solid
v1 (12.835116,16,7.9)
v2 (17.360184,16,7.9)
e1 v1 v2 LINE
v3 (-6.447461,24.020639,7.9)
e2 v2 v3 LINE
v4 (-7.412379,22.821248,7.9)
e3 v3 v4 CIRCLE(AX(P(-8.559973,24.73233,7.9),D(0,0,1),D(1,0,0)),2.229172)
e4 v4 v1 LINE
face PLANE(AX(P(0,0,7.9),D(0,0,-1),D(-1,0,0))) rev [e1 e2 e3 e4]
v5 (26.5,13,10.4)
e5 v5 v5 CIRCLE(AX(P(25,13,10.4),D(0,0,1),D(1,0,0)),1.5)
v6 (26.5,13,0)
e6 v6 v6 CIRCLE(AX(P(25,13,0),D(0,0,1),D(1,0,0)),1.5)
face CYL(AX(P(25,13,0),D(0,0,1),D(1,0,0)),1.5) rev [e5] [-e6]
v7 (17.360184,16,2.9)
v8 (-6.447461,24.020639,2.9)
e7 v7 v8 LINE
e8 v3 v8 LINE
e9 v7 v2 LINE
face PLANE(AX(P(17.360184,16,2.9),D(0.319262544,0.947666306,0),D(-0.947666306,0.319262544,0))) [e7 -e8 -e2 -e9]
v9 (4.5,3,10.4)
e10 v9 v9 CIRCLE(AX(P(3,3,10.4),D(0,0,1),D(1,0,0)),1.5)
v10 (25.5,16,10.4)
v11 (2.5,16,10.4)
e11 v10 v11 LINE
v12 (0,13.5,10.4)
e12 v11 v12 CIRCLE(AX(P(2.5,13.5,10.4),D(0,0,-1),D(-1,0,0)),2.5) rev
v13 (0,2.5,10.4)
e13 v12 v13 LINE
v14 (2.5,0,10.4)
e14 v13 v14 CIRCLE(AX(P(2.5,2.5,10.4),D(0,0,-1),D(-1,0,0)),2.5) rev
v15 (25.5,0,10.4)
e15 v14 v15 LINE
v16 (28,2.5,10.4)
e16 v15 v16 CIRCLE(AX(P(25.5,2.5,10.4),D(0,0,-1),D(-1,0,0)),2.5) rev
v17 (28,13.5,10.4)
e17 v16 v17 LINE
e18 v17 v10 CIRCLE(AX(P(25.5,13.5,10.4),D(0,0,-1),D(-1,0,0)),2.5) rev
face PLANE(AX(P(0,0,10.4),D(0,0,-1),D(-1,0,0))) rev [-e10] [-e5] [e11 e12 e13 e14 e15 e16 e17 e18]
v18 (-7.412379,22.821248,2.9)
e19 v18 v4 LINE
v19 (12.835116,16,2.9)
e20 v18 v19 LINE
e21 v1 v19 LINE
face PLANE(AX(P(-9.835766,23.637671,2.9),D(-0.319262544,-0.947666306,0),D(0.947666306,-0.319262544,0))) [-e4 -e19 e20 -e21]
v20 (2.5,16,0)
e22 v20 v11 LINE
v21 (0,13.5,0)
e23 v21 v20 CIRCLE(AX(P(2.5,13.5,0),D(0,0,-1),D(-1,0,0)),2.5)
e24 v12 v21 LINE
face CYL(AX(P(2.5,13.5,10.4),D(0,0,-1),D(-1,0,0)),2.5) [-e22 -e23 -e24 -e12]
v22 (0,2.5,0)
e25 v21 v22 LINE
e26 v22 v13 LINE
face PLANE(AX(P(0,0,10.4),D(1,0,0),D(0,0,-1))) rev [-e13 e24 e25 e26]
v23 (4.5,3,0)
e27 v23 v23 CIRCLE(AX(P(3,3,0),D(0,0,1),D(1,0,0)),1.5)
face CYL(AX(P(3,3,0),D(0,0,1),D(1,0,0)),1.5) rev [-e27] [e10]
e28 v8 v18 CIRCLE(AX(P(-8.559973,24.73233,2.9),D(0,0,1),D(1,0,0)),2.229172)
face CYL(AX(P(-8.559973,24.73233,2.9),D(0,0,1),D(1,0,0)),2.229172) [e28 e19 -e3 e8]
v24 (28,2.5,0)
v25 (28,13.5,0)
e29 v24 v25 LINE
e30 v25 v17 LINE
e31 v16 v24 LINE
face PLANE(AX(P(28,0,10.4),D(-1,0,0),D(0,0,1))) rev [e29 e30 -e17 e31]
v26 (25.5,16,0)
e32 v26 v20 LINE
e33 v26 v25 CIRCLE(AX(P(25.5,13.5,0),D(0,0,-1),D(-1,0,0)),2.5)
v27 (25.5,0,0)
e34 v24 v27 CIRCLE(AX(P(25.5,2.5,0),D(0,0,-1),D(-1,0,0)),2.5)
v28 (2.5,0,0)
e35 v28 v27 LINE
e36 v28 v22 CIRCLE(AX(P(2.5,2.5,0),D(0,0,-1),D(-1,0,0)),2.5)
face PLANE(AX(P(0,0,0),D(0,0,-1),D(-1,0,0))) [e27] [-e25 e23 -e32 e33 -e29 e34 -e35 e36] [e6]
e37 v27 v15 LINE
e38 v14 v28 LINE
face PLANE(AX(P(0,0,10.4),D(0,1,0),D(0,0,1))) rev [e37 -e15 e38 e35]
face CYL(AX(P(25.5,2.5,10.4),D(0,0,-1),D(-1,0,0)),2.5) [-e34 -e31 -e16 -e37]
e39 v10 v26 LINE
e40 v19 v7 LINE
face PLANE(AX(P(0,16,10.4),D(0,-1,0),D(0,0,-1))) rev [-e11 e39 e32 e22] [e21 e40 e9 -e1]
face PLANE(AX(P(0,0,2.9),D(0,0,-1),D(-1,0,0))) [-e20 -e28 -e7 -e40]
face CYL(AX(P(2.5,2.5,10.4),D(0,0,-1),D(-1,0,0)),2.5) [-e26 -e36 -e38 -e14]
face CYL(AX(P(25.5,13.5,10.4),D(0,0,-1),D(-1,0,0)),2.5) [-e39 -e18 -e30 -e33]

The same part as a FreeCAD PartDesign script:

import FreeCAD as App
import Part
import Sketcher


def edges_at(feature, points):
    """Names of the edges that pass closest to the given points."""
    edges = feature.Shape.Edges
    near = lambda p: min(range(len(edges)), key=lambda i: edges[i].distToShape(Part.Vertex(*p))[0])
    return sorted({f"Edge{near(p) + 1}" for p in points})


def add_polygon(sketch, points):
    """Adds a closed chain of lines whose ends are joined by coincident constraints."""
    first, n = sketch.GeometryCount, len(points)
    for a, b in zip(points, points[1:] + points[:1]):
        sketch.addGeometry(Part.LineSegment(App.Vector(*a, 0), App.Vector(*b, 0)), False)
    for i in range(n):
        sketch.addConstraint(Sketcher.Constraint("Coincident", first + i, 2, first + (i + 1) % n, 1))

doc = App.newDocument("Part")
body = doc.addObject("PartDesign::Body", "Body")

sketch1 = body.newObject("Sketcher::SketchObject", "Sketch")
sketch1.AttachmentSupport = (doc.getObject("XY_Plane"), [""])
sketch1.MapMode = "FlatFace"
add_polygon(sketch1, [(0, 16), (0, 0), (28, 0), (28, 16)])
sketch1.addConstraint(Sketcher.Constraint("Vertical", 0))
sketch1.addConstraint(Sketcher.Constraint("Horizontal", 1))
sketch1.addConstraint(Sketcher.Constraint("Vertical", 2))
sketch1.addConstraint(Sketcher.Constraint("Horizontal", 3))
sketch1.addConstraint(Sketcher.Constraint("Coincident", 0, 2, -1, 1))
sketch1.addConstraint(Sketcher.Constraint("DistanceX", 1, 1, 1, 2, 28.0))
sketch1.addConstraint(Sketcher.Constraint("DistanceY", 0, 2, 0, 1, 16.0))
pad1 = body.newObject("PartDesign::Pad", "Pad")
pad1.Profile = sketch1
pad1.Length = 10.4

sketch2 = body.newObject("Sketcher::SketchObject", "Sketch001")
sketch2.AttachmentSupport = (doc.getObject("XY_Plane"), [""])
sketch2.MapMode = "FlatFace"
sketch2.AttachmentOffset = App.Placement(App.Vector(0, 0, 10.4), App.Rotation())
sketch2.addGeometry(Part.Circle(App.Vector(3, 3, 0), App.Vector(0, 0, 1), 1.5), False)
sketch2.addGeometry(Part.Circle(App.Vector(25, 13, 0), App.Vector(0, 0, 1), 1.5), False)
sketch2.addConstraint(Sketcher.Constraint("Equal", 0, 1))
sketch2.addConstraint(Sketcher.Constraint("Diameter", 0, 3.0))
sketch2.addConstraint(Sketcher.Constraint("DistanceX", -1, 1, 0, 3, 3.0))
sketch2.addConstraint(Sketcher.Constraint("DistanceY", -1, 1, 0, 3, 3.0))
sketch2.addConstraint(Sketcher.Constraint("DistanceX", -1, 1, 1, 3, 25.0))
sketch2.addConstraint(Sketcher.Constraint("DistanceY", -1, 1, 1, 3, 13.0))
pocket1 = body.newObject("PartDesign::Pocket", "Pocket")
pocket1.Profile = sketch2
pocket1.Length = 10.4
doc.recompute()

fillet = body.newObject("PartDesign::Fillet", "Fillet")
fillet.Base = (pocket1, edges_at(pocket1, [
    (0, 16, 5.2),
    (28, 16, 5.2),
    (28, 0, 5.2),
    (0, 0, 5.2),
]))
fillet.Radius = 2.5

sketch3 = body.newObject("Sketcher::SketchObject", "Sketch002")
sketch3.AttachmentSupport = (doc.getObject("XY_Plane"), [""])
sketch3.MapMode = "FlatFace"
sketch3.AttachmentOffset = App.Placement(App.Vector(0, 0, 7.9), App.Rotation())
add_polygon(sketch3, [(17.4, 16), (-9.4, 25), (-9.8, 23.6), (15.2, 15.2)])
sketch3.addConstraint(Sketcher.Constraint("Perpendicular", 0, 1))
sketch3.addConstraint(Sketcher.Constraint("Perpendicular", 1, 2))
sketch3.addConstraint(Sketcher.Constraint("DistanceY", -1, 1, 3, 2, 16.0))
sketch3.addConstraint(Sketcher.Constraint("Distance", 0, 28.211108))
sketch3.addConstraint(Sketcher.Constraint("Distance", 3, 2.26276))
sketch3.addConstraint(Sketcher.Constraint("DistanceY", -1, 1, 0, 2, 25.00675))
sketch3.addConstraint(Sketcher.Constraint("DistanceY", -1, 1, 1, 2, 23.637671))
sketch3.addConstraint(Sketcher.Constraint("DistanceX", -1, 1, 2, 2, 15.24855))
pad2 = body.newObject("PartDesign::Pad", "Pad001")
pad2.Profile = sketch3
pad2.Length = 5
pad2.Reversed = True

sketch4 = body.newObject("Sketcher::SketchObject", "Sketch003")
sketch4.AttachmentSupport = (doc.getObject("XY_Plane"), [""])
sketch4.MapMode = "FlatFace"
sketch4.AttachmentOffset = App.Placement(App.Vector(0, 0, 7.9), App.Rotation())
sketch4.addGeometry(Part.Circle(App.Vector(-8.6, 24.7, 0), App.Vector(0, 0, 1), 2.2), False)
sketch4.addConstraint(Sketcher.Constraint("Diameter", 0, 4.458344))
sketch4.addConstraint(Sketcher.Constraint("DistanceY", -1, 1, 0, 3, 24.73233))
sketch4.addConstraint(Sketcher.Constraint("DistanceX", 0, 3, -1, 1, 8.559973))
pad3 = body.newObject("PartDesign::Pad", "Pad002")
pad3.Profile = sketch4
pad3.Length = 5
pad3.Reversed = True

doc.recompute()
